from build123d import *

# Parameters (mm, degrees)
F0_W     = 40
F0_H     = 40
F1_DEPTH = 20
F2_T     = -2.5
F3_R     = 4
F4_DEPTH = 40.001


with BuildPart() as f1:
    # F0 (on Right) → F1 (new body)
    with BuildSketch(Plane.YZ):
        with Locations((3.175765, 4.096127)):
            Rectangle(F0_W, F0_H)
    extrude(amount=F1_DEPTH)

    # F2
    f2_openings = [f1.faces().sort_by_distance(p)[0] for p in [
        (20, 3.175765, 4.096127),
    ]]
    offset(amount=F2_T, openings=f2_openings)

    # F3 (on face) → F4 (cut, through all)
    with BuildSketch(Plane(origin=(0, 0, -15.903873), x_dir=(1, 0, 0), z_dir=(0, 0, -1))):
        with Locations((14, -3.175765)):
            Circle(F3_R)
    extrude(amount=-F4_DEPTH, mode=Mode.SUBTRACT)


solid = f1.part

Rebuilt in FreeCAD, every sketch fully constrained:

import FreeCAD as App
import Part
import Sketcher
from FreeCAD import Vector


def faces_at(feature, points):
    """Names of the faces that lie closest to the given points."""
    faces = feature.Shape.Faces
    near = lambda p: min(range(len(faces)), key=lambda i: faces[i].distToShape(Part.Vertex(*p))[0])
    return sorted({f"Face{near(p) + 1}" for p in points})


def add_polygon(sketch, points):
    """Adds a closed chain of lines whose ends are joined by coincident constraints."""
    first, n = sketch.GeometryCount, len(points)
    for a, b in zip(points, points[1:] + points[:1]):
        sketch.addGeometry(Part.LineSegment(App.Vector(*a, 0), App.Vector(*b, 0)), False)
    for i in range(n):
        sketch.addConstraint(Sketcher.Constraint("Coincident", first + i, 2, first + (i + 1) % n, 1))

doc = App.newDocument("Part")
body = doc.addObject("PartDesign::Body", "Body")

# Sketch on YZ plane
sketch1 = body.newObject("Sketcher::SketchObject", "Sketch")
sketch1.AttachmentSupport = (doc.getObject("YZ_Plane"), [""])
sketch1.MapMode = "FlatFace"
add_polygon(sketch1, [(-17, 24), (-17, -16), (23, -16), (23, 24)])  # lines 0-3
sketch1.addConstraint(Sketcher.Constraint("Vertical", 0))
sketch1.addConstraint(Sketcher.Constraint("Horizontal", 1))
sketch1.addConstraint(Sketcher.Constraint("Vertical", 2))
sketch1.addConstraint(Sketcher.Constraint("Horizontal", 3))
sketch1.addConstraint(Sketcher.Constraint("Equal", 3, 0))
sketch1.addConstraint(Sketcher.Constraint("DistanceX", 1, 1, 1, 2, 40.0))
sketch1.addConstraint(Sketcher.Constraint("DistanceX", 0, 2, -1, 1, 16.824235))
sketch1.addConstraint(Sketcher.Constraint("DistanceY", 0, 2, -1, 1, 15.903873))
pad1 = body.newObject("PartDesign::Pad", "Pad")
pad1.Profile = sketch1
pad1.Length = 20
doc.recompute()

thickness = body.newObject("PartDesign::Thickness", "Thickness")
thickness.Base = (pad1, faces_at(pad1, [(20, 3.176, 4.096)]))
thickness.Value = 2.5
thickness.Reversed = True
thickness.Join = "Arc"

# Sketch on XY plane
sketch2 = body.newObject("Sketcher::SketchObject", "Sketch001")
sketch2.AttachmentSupport = (doc.getObject("XY_Plane"), [""])
sketch2.MapMode = "FlatFace"
sketch2.AttachmentOffset = App.Placement(Vector(0, 0, -15.903873), App.Rotation())
sketch2.addGeometry(Part.Circle(Vector(14, 3.2, 0), Vector(0, 0, 1), 4), False)
sketch2.addConstraint(Sketcher.Constraint("Diameter", 0, 8.0))
sketch2.addConstraint(Sketcher.Constraint("DistanceX", -1, 1, 0, 3, 14.0))
sketch2.addConstraint(Sketcher.Constraint("DistanceY", -1, 1, 0, 3, 3.175765))
pocket1 = body.newObject("PartDesign::Pocket", "Pocket")
pocket1.Profile = sketch2
pocket1.Type = "ThroughAll"
pocket1.Reversed = True

doc.recompute()
